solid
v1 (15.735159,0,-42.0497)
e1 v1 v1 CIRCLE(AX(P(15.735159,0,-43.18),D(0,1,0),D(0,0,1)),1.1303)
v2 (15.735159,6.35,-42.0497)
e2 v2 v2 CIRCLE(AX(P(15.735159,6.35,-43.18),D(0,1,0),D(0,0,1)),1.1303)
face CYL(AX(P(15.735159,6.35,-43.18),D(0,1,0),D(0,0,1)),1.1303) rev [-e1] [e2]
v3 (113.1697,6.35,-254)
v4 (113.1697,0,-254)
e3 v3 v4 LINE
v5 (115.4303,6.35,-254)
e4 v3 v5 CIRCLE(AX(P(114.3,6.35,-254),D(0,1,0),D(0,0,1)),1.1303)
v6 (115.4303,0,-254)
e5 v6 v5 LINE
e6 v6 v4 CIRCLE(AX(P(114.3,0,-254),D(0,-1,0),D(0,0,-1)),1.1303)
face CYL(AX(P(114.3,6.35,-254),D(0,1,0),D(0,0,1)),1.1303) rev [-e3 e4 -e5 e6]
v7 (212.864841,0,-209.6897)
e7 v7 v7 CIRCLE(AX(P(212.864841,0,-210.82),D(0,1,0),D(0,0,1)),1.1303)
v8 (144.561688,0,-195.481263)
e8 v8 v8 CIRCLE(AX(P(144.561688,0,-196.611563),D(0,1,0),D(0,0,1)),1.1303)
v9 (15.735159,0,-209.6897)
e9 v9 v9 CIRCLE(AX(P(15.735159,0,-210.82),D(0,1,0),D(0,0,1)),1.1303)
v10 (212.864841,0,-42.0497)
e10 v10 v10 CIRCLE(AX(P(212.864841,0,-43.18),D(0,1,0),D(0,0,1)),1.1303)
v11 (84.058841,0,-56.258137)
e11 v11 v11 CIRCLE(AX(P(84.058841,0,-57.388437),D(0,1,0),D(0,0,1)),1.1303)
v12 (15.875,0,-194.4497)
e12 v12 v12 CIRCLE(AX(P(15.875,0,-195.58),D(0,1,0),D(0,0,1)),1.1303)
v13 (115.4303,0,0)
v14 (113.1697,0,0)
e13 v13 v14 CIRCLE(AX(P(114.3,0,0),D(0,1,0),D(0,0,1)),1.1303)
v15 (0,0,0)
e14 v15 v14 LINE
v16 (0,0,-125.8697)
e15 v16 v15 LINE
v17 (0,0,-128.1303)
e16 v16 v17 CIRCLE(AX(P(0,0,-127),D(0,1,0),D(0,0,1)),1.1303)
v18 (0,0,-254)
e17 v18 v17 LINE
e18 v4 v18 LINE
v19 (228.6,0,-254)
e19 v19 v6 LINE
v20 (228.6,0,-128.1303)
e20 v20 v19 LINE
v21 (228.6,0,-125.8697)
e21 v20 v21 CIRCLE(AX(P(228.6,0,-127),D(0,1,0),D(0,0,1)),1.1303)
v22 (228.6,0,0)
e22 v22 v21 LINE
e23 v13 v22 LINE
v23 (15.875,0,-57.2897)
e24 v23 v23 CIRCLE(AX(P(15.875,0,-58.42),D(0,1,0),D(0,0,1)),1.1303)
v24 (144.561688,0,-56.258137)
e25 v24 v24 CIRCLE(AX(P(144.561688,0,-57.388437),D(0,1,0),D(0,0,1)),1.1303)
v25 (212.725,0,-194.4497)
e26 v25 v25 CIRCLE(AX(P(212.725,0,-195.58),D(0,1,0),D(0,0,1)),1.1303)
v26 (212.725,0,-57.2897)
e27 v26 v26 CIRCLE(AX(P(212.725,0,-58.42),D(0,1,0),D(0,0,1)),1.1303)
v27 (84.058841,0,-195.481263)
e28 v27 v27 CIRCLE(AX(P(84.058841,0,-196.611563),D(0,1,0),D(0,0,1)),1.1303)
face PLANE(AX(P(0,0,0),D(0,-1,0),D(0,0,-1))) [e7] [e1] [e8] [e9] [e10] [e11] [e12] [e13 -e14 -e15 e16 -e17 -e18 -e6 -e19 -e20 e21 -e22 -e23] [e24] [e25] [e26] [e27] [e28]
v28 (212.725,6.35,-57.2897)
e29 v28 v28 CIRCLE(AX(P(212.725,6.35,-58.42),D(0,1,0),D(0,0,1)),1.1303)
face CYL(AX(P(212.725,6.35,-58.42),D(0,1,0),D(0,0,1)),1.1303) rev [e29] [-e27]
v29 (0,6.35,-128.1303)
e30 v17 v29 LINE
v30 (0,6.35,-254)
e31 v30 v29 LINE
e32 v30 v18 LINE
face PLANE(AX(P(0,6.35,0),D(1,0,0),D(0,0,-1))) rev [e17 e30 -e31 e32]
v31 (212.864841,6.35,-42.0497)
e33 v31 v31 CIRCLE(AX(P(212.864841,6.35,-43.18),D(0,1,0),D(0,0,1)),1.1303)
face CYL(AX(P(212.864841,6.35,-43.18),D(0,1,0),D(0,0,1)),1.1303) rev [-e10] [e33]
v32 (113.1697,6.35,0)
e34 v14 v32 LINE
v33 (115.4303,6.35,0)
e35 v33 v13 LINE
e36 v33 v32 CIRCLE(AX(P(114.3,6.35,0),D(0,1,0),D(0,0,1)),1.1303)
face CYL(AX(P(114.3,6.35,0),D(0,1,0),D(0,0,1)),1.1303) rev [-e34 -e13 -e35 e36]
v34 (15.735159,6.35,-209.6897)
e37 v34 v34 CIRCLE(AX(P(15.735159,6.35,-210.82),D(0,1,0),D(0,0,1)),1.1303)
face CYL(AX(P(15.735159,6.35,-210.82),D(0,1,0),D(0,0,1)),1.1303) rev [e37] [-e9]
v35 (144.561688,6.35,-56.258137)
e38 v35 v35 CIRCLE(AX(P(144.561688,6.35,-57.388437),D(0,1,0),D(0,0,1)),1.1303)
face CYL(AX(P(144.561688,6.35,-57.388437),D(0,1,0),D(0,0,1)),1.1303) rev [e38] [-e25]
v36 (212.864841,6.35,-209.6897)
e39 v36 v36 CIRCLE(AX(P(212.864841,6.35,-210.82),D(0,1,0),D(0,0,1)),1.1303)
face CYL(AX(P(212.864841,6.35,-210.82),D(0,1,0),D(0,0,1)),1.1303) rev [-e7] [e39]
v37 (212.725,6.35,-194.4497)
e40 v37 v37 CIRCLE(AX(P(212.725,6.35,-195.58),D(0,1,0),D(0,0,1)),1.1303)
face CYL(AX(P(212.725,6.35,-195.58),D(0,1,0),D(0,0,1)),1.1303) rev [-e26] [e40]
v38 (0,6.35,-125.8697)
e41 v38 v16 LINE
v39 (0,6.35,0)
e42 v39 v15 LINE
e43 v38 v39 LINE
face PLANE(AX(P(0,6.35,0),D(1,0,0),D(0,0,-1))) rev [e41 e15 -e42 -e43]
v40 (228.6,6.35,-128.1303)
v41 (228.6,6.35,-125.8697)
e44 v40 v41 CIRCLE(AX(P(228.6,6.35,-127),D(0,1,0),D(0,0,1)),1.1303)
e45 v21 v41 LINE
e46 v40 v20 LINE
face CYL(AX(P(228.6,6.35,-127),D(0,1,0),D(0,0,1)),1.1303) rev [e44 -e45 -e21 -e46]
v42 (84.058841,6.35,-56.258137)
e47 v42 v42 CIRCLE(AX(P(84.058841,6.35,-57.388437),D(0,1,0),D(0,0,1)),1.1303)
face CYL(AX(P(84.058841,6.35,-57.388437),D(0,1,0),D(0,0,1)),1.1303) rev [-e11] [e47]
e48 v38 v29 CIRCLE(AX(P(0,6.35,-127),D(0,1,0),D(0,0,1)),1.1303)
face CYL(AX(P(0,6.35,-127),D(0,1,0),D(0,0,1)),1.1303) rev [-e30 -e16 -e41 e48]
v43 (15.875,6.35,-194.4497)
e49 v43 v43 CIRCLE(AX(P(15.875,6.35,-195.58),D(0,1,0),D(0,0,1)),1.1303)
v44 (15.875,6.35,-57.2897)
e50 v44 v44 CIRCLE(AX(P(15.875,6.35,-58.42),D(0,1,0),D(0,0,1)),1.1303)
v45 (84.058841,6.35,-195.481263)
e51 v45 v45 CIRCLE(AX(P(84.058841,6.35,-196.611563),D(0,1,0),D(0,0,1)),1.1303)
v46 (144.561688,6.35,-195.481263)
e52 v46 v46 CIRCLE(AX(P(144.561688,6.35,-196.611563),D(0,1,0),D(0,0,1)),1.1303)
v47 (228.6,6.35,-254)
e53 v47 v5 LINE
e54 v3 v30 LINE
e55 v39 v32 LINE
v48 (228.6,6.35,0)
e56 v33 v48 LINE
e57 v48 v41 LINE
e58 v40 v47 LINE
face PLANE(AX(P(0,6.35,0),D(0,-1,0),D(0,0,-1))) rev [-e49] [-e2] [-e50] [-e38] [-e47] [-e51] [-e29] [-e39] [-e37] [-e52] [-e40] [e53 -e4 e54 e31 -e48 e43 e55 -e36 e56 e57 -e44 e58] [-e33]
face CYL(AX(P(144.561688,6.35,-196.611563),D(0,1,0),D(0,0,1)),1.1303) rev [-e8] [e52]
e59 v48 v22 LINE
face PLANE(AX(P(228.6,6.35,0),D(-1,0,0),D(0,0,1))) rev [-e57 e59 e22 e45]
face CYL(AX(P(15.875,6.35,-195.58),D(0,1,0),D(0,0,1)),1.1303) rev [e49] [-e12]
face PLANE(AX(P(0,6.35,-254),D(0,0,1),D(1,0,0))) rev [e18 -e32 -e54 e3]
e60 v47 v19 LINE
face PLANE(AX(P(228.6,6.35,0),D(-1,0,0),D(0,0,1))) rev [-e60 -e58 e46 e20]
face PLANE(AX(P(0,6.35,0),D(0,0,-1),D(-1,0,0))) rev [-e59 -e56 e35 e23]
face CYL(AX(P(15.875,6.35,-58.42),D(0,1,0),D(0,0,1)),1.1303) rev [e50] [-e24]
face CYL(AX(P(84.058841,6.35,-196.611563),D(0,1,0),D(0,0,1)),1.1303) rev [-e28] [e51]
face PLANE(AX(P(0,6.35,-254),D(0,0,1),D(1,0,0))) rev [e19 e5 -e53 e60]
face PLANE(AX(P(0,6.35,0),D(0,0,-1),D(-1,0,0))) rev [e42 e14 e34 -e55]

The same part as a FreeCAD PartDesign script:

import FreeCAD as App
import Part
import Sketcher
from FreeCAD import Vector
Q = App.Units.Quantity

doc = App.newDocument("Part")
params = doc.addObject("Spreadsheet::Sheet", "Params")
for row, (alias, value) in enumerate([
    ("sketch1_width", "9 in"),
    ("sketch1_height", "10 in"),
    ("pad1_length", "0.25 in"),
    ("sketch2_diameter", "0.089 in"),
    ("hole_diameter", "0.089 in"),
], start=1):
    params.set(f"A{row}", alias)
    params.set(f"B{row}", "=" + value)
    params.setAlias(f"B{row}", alias)

body = doc.addObject("PartDesign::Body", "Body")

# Sketch on XZ plane
sketch1 = doc.addObject("Sketcher::SketchObject", "Sketch")
body.addObject(sketch1)
sketch1.AttachmentSupport = (doc.XZ_Plane, [""])
sketch1.MapMode = "FlatFace"
sketch1.addGeometry(Part.LineSegment(Vector(0, -254, 0), Vector(0, 0, 0)), False)
sketch1.addGeometry(Part.LineSegment(Vector(0, 0, 0), Vector(229, 0, 0)), False)
sketch1.addGeometry(Part.LineSegment(Vector(229, 0, 0), Vector(229, -254, 0)), False)
sketch1.addGeometry(Part.LineSegment(Vector(229, -254, 0), Vector(0, -254, 0)), False)
sketch1.addConstraint(Sketcher.Constraint("Coincident", 0, 2, 1, 1))
sketch1.addConstraint(Sketcher.Constraint("Coincident", 1, 2, 2, 1))
sketch1.addConstraint(Sketcher.Constraint("Coincident", 2, 2, 3, 1))
sketch1.addConstraint(Sketcher.Constraint("Coincident", 3, 2, 0, 1))
sketch1.addConstraint(Sketcher.Constraint("Vertical", 0))
sketch1.addConstraint(Sketcher.Constraint("Horizontal", 1))
sketch1.addConstraint(Sketcher.Constraint("Vertical", 2))
sketch1.addConstraint(Sketcher.Constraint("Horizontal", 3))
sketch1.addConstraint(Sketcher.Constraint("Coincident", 0, 2, -1, 1))
sketch1.addConstraint(Sketcher.Constraint("DistanceX", 1, 1, 1, 2, Q("9 in")))
sketch1.addConstraint(Sketcher.Constraint("DistanceY", 0, 1, 0, 2, Q("10 in")))
sketch1.setExpression("Constraints[9]", "Params.sketch1_width")
sketch1.setExpression("Constraints[10]", "Params.sketch1_height")
pad1 = doc.addObject("PartDesign::Pad", "Pad")
body.addObject(pad1)
pad1.Profile = sketch1
pad1.setExpression("Length", "Params.pad1_length")
pad1.Reversed = True

# Sketch on XZ plane
sketch2 = doc.addObject("Sketcher::SketchObject", "Sketch001")
body.addObject(sketch2)
sketch2.AttachmentSupport = (doc.XZ_Plane, [""])
sketch2.MapMode = "FlatFace"
sketch2.AttachmentOffset = App.Placement(Vector(0, 0, -0.25 * 25.4), App.Rotation())
sketch2.addGeometry(Part.Circle(Vector(15.7, -43.2, 0), Vector(0, 0, 1), 1.1), False)
sketch2.addGeometry(Part.Circle(Vector(15.9, -58.4, 0), Vector(0, 0, 1), 1.1), False)
sketch2.addGeometry(Part.Circle(Vector(84.1, -57.4, 0), Vector(0, 0, 1), 1.1), False)
sketch2.addGeometry(Part.Circle(Vector(144.6, -57.4, 0), Vector(0, 0, 1), 1.1), False)
sketch2.addGeometry(Part.Circle(Vector(0, -127, 0), Vector(0, 0, 1), 1.1), False)
sketch2.addGeometry(Part.Circle(Vector(144.6, -196.6, 0), Vector(0, 0, 1), 1.1), False)
sketch2.addGeometry(Part.Circle(Vector(84.1, -196.6, 0), Vector(0, 0, 1), 1.1), False)
sketch2.addGeometry(Part.Circle(Vector(15.9, -195.6, 0), Vector(0, 0, 1), 1.1), False)
sketch2.addGeometry(Part.Circle(Vector(15.7, -210.8, 0), Vector(0, 0, 1), 1.1), False)
sketch2.addGeometry(Part.Circle(Vector(114.3, 0, 0), Vector(0, 0, 1), 1.1), False)
sketch2.addGeometry(Part.Circle(Vector(212.9, -43.2, 0), Vector(0, 0, 1), 1.1), False)
sketch2.addGeometry(Part.Circle(Vector(212.7, -58.4, 0), Vector(0, 0, 1), 1.1), False)
sketch2.addGeometry(Part.Circle(Vector(212.9, -210.8, 0), Vector(0, 0, 1), 1.1), False)
sketch2.addGeometry(Part.Circle(Vector(212.7, -195.6, 0), Vector(0, 0, 1), 1.1), False)
sketch2.addGeometry(Part.Circle(Vector(228.6, -127, 0), Vector(0, 0, 1), 1.1), False)
sketch2.addGeometry(Part.Circle(Vector(114.3, -254, 0), Vector(0, 0, 1), 1.1), False)
sketch2.addConstraint(Sketcher.Constraint("Equal", 0, 1))
sketch2.addConstraint(Sketcher.Constraint("Equal", 1, 2))
sketch2.addConstraint(Sketcher.Constraint("Equal", 2, 3))
sketch2.addConstraint(Sketcher.Constraint("Equal", 3, 4))
sketch2.addConstraint(Sketcher.Constraint("Equal", 4, 5))
sketch2.addConstraint(Sketcher.Constraint("Equal", 5, 6))
sketch2.addConstraint(Sketcher.Constraint("Equal", 6, 7))
sketch2.addConstraint(Sketcher.Constraint("Equal", 7, 8))
sketch2.addConstraint(Sketcher.Constraint("Equal", 8, 9))
sketch2.addConstraint(Sketcher.Constraint("Equal", 9, 10))
sketch2.addConstraint(Sketcher.Constraint("Equal", 10, 11))
sketch2.addConstraint(Sketcher.Constraint("Equal", 11, 12))
sketch2.addConstraint(Sketcher.Constraint("Equal", 12, 13))
sketch2.addConstraint(Sketcher.Constraint("Equal", 13, 14))
sketch2.addConstraint(Sketcher.Constraint("Equal", 14, 15))
sketch2.addConstraint(Sketcher.Constraint("PointOnObject", 4, 3, -2))
sketch2.addConstraint(Sketcher.Constraint("PointOnObject", 9, 3, -1))
sketch2.addConstraint(Sketcher.Constraint("Horizontal", 2, 3, 3, 3))
sketch2.addConstraint(Sketcher.Constraint("Horizontal", 5, 3, 6, 3))
sketch2.addConstraint(Sketcher.Constraint("Horizontal", 0, 3, 10, 3))
sketch2.addConstraint(Sketcher.Constraint("Horizontal", 1, 3, 11, 3))
sketch2.addConstraint(Sketcher.Constraint("Horizontal", 8, 3, 12, 3))
sketch2.addConstraint(Sketcher.Constraint("Horizontal", 7, 3, 13, 3))
sketch2.addConstraint(Sketcher.Constraint("Horizontal", 4, 3, 14, 3))
sketch2.addConstraint(Sketcher.Constraint("Vertical", 3, 3, 5, 3))
sketch2.addConstraint(Sketcher.Constraint("Vertical", 2, 3, 6, 3))
sketch2.addConstraint(Sketcher.Constraint("Vertical", 1, 3, 7, 3))
sketch2.addConstraint(Sketcher.Constraint("Vertical", 0, 3, 8, 3))
sketch2.addConstraint(Sketcher.Constraint("Vertical", 10, 3, 12, 3))
sketch2.addConstraint(Sketcher.Constraint("Vertical", 11, 3, 13, 3))
sketch2.addConstraint(Sketcher.Constraint("Vertical", 9, 3, 15, 3))
sketch2.addConstraint(Sketcher.Constraint("Diameter", 0, Q("0.089 in")))
sketch2.addConstraint(Sketcher.Constraint("DistanceY", 4, 3, -1, 1, Q("5 in")))
sketch2.addConstraint(Sketcher.Constraint("DistanceX", -1, 1, 14, 3, Q("9 in")))
sketch2.addConstraint(Sketcher.Constraint("DistanceY", 15, 3, -1, 1, Q("10 in")))
sketch2.addConstraint(Sketcher.Constraint("DistanceY", 7, 3, 0, 3, Q("6 in")))
sketch2.addConstraint(Sketcher.Constraint("DistanceY", 8, 3, 1, 3, Q("6 in")))
sketch2.addConstraint(Sketcher.Constraint("DistanceY", 0, 3, -1, 1, Q("1.7 in")))
sketch2.addConstraint(Sketcher.Constraint("DistanceY", 1, 3, -1, 1, Q("2.3 in")))
sketch2.addConstraint(Sketcher.Constraint("DistanceX", -1, 1, 9, 3, Q("4.5 in")))
sketch2.addConstraint(Sketcher.Constraint("DistanceX", -1, 1, 1, 3, Q("0.625 in")))
sketch2.addConstraint(Sketcher.Constraint("DistanceX", -1, 1, 11, 3, Q("8.375 in")))
sketch2.addConstraint(Sketcher.Constraint("DistanceX", 2, 3, 10, 3, Q("128.805999 mm")))
sketch2.addConstraint(Sketcher.Constraint("DistanceX", -1, 1, 0, 3, Q("15.735159 mm")))
sketch2.addConstraint(Sketcher.Constraint("DistanceX", -1, 1, 2, 3, Q("84.058841 mm")))
sketch2.addConstraint(Sketcher.Constraint("DistanceX", -1, 1, 3, 3, Q("144.561688 mm")))
sketch2.addConstraint(Sketcher.Constraint("DistanceY", 2, 3, -1, 1, Q("57.388437 mm")))
sketch2.addConstraint(Sketcher.Constraint("DistanceY", 5, 3, -1, 1, Q("196.611563 mm")))
sketch2.setExpression("Constraints[31]", "Params.sketch2_diameter")
doc.recompute()
hole = doc.addObject("PartDesign::Hole", "Hole")
body.addObject(hole)
hole.Profile = sketch2
hole.ThreadType = "None"
hole.setExpression("Diameter", "Params.hole_diameter")
hole.DepthType = "ThroughAll"
hole.Reversed = True

doc.recompute()
